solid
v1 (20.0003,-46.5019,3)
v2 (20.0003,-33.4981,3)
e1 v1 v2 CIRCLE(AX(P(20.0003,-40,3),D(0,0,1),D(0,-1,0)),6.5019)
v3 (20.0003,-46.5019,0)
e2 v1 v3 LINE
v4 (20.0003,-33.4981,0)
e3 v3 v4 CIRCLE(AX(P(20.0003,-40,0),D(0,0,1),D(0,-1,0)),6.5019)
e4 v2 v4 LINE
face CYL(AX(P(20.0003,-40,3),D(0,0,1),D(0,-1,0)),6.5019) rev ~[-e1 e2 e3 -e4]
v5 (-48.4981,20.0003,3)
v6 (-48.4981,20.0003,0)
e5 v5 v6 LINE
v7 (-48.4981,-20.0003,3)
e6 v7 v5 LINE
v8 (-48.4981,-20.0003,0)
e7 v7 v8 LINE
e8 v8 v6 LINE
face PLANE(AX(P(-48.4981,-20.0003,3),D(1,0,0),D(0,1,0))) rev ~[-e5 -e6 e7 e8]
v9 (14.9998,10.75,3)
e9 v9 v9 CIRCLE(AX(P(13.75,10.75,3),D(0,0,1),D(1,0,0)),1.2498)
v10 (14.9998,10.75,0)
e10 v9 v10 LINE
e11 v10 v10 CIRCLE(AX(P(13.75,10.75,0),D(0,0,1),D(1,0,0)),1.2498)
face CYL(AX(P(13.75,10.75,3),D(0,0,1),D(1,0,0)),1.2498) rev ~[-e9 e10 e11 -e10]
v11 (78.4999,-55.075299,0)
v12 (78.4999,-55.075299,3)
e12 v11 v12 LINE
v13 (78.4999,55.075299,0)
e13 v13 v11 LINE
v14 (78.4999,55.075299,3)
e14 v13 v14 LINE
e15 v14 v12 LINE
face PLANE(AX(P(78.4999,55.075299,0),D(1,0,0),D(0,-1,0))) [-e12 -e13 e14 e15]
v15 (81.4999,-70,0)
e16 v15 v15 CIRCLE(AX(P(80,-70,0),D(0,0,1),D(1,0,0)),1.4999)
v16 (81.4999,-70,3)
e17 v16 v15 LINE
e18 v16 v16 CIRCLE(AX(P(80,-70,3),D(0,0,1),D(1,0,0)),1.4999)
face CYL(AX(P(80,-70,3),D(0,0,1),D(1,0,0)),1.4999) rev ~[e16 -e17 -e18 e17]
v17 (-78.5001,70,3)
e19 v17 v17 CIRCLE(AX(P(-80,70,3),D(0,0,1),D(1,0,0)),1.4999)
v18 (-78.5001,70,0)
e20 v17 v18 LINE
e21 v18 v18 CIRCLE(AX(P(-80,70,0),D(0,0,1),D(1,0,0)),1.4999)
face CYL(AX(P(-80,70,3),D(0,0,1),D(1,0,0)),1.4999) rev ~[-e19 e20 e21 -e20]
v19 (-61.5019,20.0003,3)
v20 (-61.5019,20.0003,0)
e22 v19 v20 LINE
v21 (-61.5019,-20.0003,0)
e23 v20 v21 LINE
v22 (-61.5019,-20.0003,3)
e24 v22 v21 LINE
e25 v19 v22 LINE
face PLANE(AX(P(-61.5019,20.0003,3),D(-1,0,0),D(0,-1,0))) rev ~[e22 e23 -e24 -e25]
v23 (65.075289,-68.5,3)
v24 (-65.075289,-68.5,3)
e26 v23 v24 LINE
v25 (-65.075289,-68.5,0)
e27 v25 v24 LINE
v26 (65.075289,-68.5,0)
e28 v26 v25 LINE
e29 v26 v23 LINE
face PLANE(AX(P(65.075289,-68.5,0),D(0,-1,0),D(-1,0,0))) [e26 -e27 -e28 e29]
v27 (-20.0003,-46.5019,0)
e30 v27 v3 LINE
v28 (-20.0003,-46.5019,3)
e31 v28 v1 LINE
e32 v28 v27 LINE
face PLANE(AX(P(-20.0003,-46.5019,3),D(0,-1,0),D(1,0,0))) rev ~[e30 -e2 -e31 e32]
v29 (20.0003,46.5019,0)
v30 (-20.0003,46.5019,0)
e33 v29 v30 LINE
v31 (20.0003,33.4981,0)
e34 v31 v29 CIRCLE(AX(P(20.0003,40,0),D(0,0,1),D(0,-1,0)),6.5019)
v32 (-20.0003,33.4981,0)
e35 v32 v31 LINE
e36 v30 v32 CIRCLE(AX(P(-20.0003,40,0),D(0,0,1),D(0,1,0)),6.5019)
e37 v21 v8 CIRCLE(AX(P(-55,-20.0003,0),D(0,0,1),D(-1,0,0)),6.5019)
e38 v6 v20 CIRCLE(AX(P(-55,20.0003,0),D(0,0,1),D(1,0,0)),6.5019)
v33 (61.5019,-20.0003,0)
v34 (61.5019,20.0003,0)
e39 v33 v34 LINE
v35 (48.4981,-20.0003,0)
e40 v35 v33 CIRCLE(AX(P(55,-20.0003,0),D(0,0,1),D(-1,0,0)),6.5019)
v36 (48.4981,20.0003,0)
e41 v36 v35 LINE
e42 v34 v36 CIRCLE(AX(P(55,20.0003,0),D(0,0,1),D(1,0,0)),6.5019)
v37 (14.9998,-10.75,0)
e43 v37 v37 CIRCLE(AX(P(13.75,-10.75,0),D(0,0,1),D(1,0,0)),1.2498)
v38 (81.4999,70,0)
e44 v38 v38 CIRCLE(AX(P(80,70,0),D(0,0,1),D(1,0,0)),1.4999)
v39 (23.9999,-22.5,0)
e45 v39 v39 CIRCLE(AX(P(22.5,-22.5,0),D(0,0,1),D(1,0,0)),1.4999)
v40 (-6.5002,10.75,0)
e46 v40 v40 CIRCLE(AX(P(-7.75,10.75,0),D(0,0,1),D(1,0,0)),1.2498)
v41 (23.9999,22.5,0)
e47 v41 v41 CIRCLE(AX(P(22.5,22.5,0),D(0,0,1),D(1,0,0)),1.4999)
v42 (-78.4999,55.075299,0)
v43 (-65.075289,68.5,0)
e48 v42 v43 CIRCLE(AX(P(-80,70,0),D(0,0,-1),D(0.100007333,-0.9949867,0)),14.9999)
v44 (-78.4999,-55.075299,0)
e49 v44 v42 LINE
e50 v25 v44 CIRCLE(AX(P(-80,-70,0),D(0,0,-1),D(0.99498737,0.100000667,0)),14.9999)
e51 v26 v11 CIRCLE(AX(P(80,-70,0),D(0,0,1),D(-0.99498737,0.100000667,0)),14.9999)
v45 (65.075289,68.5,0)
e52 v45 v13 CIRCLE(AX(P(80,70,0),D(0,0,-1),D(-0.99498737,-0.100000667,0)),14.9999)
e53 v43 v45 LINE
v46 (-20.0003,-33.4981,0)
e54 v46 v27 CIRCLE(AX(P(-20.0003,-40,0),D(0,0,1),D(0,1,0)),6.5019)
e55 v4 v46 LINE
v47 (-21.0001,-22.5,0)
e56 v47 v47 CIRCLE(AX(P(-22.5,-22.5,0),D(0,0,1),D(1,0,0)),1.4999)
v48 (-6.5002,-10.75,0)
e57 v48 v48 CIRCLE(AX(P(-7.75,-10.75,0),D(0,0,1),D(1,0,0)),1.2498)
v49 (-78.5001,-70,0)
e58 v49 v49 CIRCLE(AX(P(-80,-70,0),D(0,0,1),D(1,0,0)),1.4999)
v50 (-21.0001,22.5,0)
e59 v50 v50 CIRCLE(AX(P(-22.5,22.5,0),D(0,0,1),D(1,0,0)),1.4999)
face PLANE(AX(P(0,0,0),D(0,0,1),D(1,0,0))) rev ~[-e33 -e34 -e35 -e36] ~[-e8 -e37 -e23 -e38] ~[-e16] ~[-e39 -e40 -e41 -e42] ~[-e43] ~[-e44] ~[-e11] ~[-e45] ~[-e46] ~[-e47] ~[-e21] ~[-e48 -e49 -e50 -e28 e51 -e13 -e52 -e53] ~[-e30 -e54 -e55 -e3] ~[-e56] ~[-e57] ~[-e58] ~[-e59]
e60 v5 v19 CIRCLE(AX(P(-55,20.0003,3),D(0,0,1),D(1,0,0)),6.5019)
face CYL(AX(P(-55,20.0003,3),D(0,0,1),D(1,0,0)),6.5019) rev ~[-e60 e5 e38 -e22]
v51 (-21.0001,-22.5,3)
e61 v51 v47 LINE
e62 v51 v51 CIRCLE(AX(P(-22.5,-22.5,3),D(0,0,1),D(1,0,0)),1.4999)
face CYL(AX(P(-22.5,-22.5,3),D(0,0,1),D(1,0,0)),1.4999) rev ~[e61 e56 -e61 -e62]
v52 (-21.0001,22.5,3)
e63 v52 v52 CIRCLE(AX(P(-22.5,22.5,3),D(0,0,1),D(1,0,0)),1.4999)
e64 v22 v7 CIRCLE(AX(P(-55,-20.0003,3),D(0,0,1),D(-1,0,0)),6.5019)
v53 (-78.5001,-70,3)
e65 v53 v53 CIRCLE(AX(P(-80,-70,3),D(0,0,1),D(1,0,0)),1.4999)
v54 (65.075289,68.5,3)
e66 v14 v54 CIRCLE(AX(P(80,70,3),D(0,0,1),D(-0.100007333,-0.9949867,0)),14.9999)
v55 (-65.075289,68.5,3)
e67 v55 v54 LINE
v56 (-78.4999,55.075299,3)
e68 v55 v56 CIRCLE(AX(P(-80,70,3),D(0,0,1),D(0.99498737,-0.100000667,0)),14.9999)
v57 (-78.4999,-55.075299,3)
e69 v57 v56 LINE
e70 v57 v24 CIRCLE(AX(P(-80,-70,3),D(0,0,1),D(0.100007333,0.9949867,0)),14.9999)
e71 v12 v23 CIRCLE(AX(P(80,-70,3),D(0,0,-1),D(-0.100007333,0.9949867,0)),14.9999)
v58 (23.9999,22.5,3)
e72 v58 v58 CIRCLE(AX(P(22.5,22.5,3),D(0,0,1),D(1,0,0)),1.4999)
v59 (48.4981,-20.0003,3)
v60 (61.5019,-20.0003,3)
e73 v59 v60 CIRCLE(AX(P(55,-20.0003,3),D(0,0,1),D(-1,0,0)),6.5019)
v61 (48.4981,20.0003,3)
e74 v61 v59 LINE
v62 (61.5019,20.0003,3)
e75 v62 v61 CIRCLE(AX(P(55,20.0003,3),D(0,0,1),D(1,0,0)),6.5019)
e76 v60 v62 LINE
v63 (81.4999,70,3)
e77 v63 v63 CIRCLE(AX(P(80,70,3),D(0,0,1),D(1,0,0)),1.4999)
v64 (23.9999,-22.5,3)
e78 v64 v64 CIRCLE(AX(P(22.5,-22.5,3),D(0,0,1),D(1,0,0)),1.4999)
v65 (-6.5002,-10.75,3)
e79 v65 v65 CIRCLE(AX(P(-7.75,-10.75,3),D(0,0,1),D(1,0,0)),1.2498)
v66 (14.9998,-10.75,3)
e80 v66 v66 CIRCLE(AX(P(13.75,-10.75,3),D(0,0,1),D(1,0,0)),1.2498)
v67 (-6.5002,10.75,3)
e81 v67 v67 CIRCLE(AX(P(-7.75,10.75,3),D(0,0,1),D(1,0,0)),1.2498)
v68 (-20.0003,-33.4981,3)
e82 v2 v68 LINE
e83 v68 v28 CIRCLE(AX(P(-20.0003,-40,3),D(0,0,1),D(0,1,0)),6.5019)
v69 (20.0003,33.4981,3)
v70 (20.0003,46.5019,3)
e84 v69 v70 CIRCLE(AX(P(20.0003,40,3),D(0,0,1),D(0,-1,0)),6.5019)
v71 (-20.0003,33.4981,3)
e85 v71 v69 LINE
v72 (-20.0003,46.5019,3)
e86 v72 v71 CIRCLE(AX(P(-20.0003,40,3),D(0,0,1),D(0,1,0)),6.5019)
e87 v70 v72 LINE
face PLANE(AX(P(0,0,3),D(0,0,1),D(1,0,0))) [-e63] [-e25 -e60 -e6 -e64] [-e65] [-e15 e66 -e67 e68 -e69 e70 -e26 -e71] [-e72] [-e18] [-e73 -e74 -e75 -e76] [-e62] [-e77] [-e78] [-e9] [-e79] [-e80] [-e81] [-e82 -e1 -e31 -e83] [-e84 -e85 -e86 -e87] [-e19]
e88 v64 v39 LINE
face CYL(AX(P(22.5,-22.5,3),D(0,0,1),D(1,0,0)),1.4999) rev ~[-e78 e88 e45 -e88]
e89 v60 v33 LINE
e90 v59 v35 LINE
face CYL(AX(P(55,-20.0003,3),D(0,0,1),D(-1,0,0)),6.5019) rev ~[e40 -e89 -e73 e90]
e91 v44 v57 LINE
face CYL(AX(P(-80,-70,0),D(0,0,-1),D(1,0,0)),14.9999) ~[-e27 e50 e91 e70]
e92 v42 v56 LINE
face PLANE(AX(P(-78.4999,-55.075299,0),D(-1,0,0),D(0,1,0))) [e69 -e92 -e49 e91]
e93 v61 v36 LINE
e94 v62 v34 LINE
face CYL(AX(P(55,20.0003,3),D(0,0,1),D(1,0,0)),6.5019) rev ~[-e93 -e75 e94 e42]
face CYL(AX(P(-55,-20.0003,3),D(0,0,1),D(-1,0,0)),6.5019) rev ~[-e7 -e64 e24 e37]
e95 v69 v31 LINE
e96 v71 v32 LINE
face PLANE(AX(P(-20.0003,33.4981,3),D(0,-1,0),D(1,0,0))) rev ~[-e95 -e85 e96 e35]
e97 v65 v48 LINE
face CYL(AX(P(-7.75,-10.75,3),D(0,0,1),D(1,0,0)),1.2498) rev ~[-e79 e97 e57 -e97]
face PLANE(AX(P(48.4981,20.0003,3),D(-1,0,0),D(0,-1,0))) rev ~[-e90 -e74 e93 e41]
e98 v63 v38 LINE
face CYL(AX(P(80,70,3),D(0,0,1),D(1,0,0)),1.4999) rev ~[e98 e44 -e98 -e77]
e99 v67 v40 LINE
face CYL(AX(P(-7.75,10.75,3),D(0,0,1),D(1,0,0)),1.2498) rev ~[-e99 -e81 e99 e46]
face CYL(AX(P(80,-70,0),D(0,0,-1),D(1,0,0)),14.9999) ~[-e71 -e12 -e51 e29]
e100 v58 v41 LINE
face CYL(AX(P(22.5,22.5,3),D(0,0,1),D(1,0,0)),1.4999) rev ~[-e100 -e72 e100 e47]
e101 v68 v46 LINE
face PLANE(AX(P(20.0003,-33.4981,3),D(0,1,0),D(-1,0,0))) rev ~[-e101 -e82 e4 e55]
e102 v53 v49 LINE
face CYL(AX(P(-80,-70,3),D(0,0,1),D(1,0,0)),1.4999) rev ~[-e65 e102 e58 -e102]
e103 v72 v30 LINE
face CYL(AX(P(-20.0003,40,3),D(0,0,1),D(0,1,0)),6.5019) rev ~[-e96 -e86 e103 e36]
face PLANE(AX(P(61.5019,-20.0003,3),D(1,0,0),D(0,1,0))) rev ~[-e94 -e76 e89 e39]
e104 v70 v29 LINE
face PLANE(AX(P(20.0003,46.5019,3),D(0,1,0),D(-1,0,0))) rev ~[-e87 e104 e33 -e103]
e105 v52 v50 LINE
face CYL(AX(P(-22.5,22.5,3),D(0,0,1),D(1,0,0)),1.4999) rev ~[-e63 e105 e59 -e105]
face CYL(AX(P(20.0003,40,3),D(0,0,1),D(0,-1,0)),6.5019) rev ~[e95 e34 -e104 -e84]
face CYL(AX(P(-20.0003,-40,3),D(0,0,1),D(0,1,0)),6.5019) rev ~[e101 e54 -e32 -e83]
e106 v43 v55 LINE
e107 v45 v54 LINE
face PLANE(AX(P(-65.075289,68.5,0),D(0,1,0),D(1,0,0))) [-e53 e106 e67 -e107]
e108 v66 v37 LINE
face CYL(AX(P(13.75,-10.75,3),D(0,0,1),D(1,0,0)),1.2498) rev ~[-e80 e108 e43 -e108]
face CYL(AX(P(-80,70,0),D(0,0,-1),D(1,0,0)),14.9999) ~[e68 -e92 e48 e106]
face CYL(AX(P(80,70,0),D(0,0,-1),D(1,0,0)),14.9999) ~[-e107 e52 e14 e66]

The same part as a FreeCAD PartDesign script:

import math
import FreeCAD as App
import Part
import Sketcher

doc = App.newDocument("Part")
body = doc.addObject("PartDesign::Body", "Body")

sketch1 = body.newObject("Sketcher::SketchObject", "Sketch")
sketch1.AttachmentSupport = (doc.getObject("XY_Plane"), [""])
sketch1.MapMode = "FlatFace"
sketch1.addGeometry([
    Part.LineSegment(App.Vector(78.4999, -55.075299, 0), App.Vector(78.4999, 55.075299, 0)),
    Part.ArcOfCircle(Part.Circle(App.Vector(80, 70, 0), App.Vector(0, 0, 1), 14.9999), math.radians(-95.739593), math.radians(185.739209)),
    Part.LineSegment(App.Vector(65.075289, 68.5, 0), App.Vector(-65.075289, 68.5, 0)),
    Part.ArcOfCircle(Part.Circle(App.Vector(-80, 70, 0), App.Vector(0, 0, 1), 14.9999), math.radians(-5.739209), math.radians(275.739593)),
    Part.LineSegment(App.Vector(-78.4999, 55.075299, 0), App.Vector(-78.4999, -55.075299, 0)),
    Part.ArcOfCircle(Part.Circle(App.Vector(-80, -70, 0), App.Vector(0, 0, 1), 14.9999), math.radians(84.260407), math.radians(365.739209)),
    Part.LineSegment(App.Vector(-65.075289, -68.5, 0), App.Vector(65.075289, -68.5, 0)),
    Part.ArcOfCircle(Part.Circle(App.Vector(80, -70, 0), App.Vector(0, 0, 1), 14.9999), math.radians(174.260791), math.radians(455.739593)),
], False)
sketch1.addConstraint([
    Sketcher.Constraint("Coincident", 0, 2, 1, 1),
    Sketcher.Constraint("Coincident", 1, 2, 2, 1),
    Sketcher.Constraint("Coincident", 2, 2, 3, 1),
    Sketcher.Constraint("Coincident", 3, 2, 4, 1),
    Sketcher.Constraint("Coincident", 4, 2, 5, 1),
    Sketcher.Constraint("Coincident", 5, 2, 6, 1),
    Sketcher.Constraint("Coincident", 6, 2, 7, 1),
    Sketcher.Constraint("Coincident", 7, 2, 0, 1),
    Sketcher.Constraint("Vertical", 0),
    Sketcher.Constraint("Horizontal", 2),
    Sketcher.Constraint("Vertical", 4),
    Sketcher.Constraint("Horizontal", 6),
    Sketcher.Constraint("Equal", 1, 3),
    Sketcher.Constraint("Equal", 3, 5),
    Sketcher.Constraint("Equal", 5, 7),
    Sketcher.Constraint("Symmetric", 1, 3, 5, 3, -1, 1),
    Sketcher.Constraint("Symmetric", 3, 3, 7, 3, -1, 1),
    Sketcher.Constraint("Symmetric", 1, 3, 3, 3, -2),
    Sketcher.Constraint("Horizontal", 0, 2, 3, 2),
    Sketcher.Constraint("Vertical", 2, 2, 5, 2),
    Sketcher.Constraint("Radius", 1, 15.0),
    Sketcher.Constraint("DistanceX", -1, 1, 1, 3, 80.0),
    Sketcher.Constraint("DistanceY", -1, 1, 1, 3, 70.0),
    Sketcher.Constraint("DistanceY", 5, 2, 2, 2, 137.0),
    Sketcher.Constraint("DistanceX", -1, 1, 0, 2, 78.5),
])
pad1 = body.newObject("PartDesign::Pad", "Pad")
pad1.Profile = sketch1
pad1.Length = 3

sketch2 = body.newObject("Sketcher::SketchObject", "Sketch001")
sketch2.AttachmentSupport = (doc.getObject("XY_Plane"), [""])
sketch2.MapMode = "FlatFace"
sketch2.AttachmentOffset = App.Placement(App.Vector(0, 0, 3), App.Rotation())
sketch2.addGeometry([
    Part.Circle(App.Vector(80, 70, 0), App.Vector(0, 0, 1), 1.4999),
    Part.Circle(App.Vector(-80, 70, 0), App.Vector(0, 0, 1), 1.4999),
    Part.Circle(App.Vector(-80, -70, 0), App.Vector(0, 0, 1), 1.4999),
    Part.Circle(App.Vector(80, -70, 0), App.Vector(0, 0, 1), 1.4999),
], False)
sketch2.addConstraint([
    Sketcher.Constraint("Equal", 0, 1),
    Sketcher.Constraint("Equal", 1, 2),
    Sketcher.Constraint("Equal", 2, 3),
    Sketcher.Constraint("Symmetric", 0, 3, 2, 3, -1, 1),
    Sketcher.Constraint("Symmetric", 1, 3, 3, 3, -1, 1),
    Sketcher.Constraint("Symmetric", 0, 3, 1, 3, -2),
    Sketcher.Constraint("DistanceX", -1, 1, 0, 3, 80.0),
    Sketcher.Constraint("DistanceY", -1, 1, 0, 3, 70.0),
    Sketcher.Constraint("Diameter", 0, 2.9998),
])
pocket1 = body.newObject("PartDesign::Pocket", "Pocket")
pocket1.Profile = sketch2
pocket1.Length = 10

sketch3 = body.newObject("Sketcher::SketchObject", "Sketch002")
sketch3.AttachmentSupport = (doc.getObject("XY_Plane"), [""])
sketch3.MapMode = "FlatFace"
sketch3.AttachmentOffset = App.Placement(App.Vector(0, 0, 3), App.Rotation())
sketch3.addGeometry([
    Part.ArcOfCircle(Part.Circle(App.Vector(-20.0003, 40, 0), App.Vector(0, 0, 1), 6.5019), math.radians(90), math.radians(270)),
    Part.LineSegment(App.Vector(-20.0003, 33.4981, 0), App.Vector(20.0003, 33.4981, 0)),
    Part.ArcOfCircle(Part.Circle(App.Vector(20.0003, 40, 0), App.Vector(0, 0, 1), 6.5019), math.radians(-90), math.radians(90)),
    Part.LineSegment(App.Vector(20.0003, 46.5019, 0), App.Vector(-20.0003, 46.5019, 0)),
    Part.ArcOfCircle(Part.Circle(App.Vector(-20.0003, -40, 0), App.Vector(0, 0, 1), 6.5019), math.radians(90), math.radians(270)),
    Part.LineSegment(App.Vector(-20.0003, -46.5019, 0), App.Vector(20.0003, -46.5019, 0)),
    Part.ArcOfCircle(Part.Circle(App.Vector(20.0003, -40, 0), App.Vector(0, 0, 1), 6.5019), math.radians(-90), math.radians(90)),
    Part.LineSegment(App.Vector(20.0003, -33.4981, 0), App.Vector(-20.0003, -33.4981, 0)),
    Part.LineSegment(App.Vector(48.4981, 20.0003, 0), App.Vector(48.4981, -20.0003, 0)),
    Part.ArcOfCircle(Part.Circle(App.Vector(55, -20.0003, 0), App.Vector(0, 0, 1), 6.5019), math.radians(180), math.radians(360)),
    Part.LineSegment(App.Vector(61.5019, -20.0003, 0), App.Vector(61.5019, 20.0003, 0)),
    Part.ArcOfCircle(Part.Circle(App.Vector(55, 20.0003, 0), App.Vector(0, 0, 1), 6.5019), math.radians(0), math.radians(180)),
    Part.LineSegment(App.Vector(-61.5019, 20.0003, 0), App.Vector(-61.5019, -20.0003, 0)),
    Part.ArcOfCircle(Part.Circle(App.Vector(-55, -20.0003, 0), App.Vector(0, 0, 1), 6.5019), math.radians(180), math.radians(360)),
    Part.LineSegment(App.Vector(-48.4981, -20.0003, 0), App.Vector(-48.4981, 20.0003, 0)),
    Part.ArcOfCircle(Part.Circle(App.Vector(-55, 20.0003, 0), App.Vector(0, 0, 1), 6.5019), math.radians(0), math.radians(180)),
], False)
sketch3.addConstraint([
    Sketcher.Constraint("Tangent", 0, 2, 1, 1),
    Sketcher.Constraint("Tangent", 1, 2, 2, 1),
    Sketcher.Constraint("Tangent", 2, 2, 3, 1),
    Sketcher.Constraint("Tangent", 3, 2, 0, 1),
    Sketcher.Constraint("Tangent", 4, 2, 5, 1),
    Sketcher.Constraint("Tangent", 5, 2, 6, 1),
    Sketcher.Constraint("Tangent", 6, 2, 7, 1),
    Sketcher.Constraint("Tangent", 7, 2, 4, 1),
    Sketcher.Constraint("Tangent", 8, 2, 9, 1),
    Sketcher.Constraint("Tangent", 9, 2, 10, 1),
    Sketcher.Constraint("Tangent", 10, 2, 11, 1),
    Sketcher.Constraint("Tangent", 11, 2, 8, 1),
    Sketcher.Constraint("Tangent", 12, 2, 13, 1),
    Sketcher.Constraint("Tangent", 13, 2, 14, 1),
    Sketcher.Constraint("Tangent", 14, 2, 15, 1),
    Sketcher.Constraint("Tangent", 15, 2, 12, 1),
    Sketcher.Constraint("Horizontal", 1),
    Sketcher.Constraint("Horizontal", 3),
    Sketcher.Constraint("Horizontal", 5),
    Sketcher.Constraint("Horizontal", 7),
    Sketcher.Constraint("Vertical", 8),
    Sketcher.Constraint("Vertical", 10),
    Sketcher.Constraint("Vertical", 12),
    Sketcher.Constraint("Vertical", 14),
    Sketcher.Constraint("Equal", 2, 4),
    Sketcher.Constraint("Equal", 6, 9),
    Sketcher.Constraint("Equal", 11, 13),
    Sketcher.Constraint("Symmetric", 2, 3, 4, 3, -1, 1),
    Sketcher.Constraint("Symmetric", 11, 3, 13, 3, -1, 1),
    Sketcher.Constraint("Horizontal", 9, 3, 13, 3),
    Sketcher.Constraint("Horizontal", 11, 3, 15, 3),
    Sketcher.Constraint("Vertical", 0, 3, 4, 3),
    Sketcher.Constraint("Vertical", 2, 3, 6, 3),
    Sketcher.Constraint("Equal", 7, 8),
    Sketcher.Constraint("DistanceY", -1, 1, 0, 3, 40.0),
    Sketcher.Constraint("DistanceX", -1, 1, 9, 3, 55.0),
    Sketcher.Constraint("Radius", 0, 6.502),
    Sketcher.Constraint("DistanceX", 1, 1, 1, 2, 40.0006),
])
pocket2 = body.newObject("PartDesign::Pocket", "Pocket001")
pocket2.Profile = sketch3
pocket2.Length = 10

sketch4 = body.newObject("Sketcher::SketchObject", "Sketch003")
sketch4.AttachmentSupport = (doc.getObject("XY_Plane"), [""])
sketch4.MapMode = "FlatFace"
sketch4.AttachmentOffset = App.Placement(App.Vector(0, 0, 3), App.Rotation())
sketch4.addGeometry([
    Part.Circle(App.Vector(13.75, 10.75, 0), App.Vector(0, 0, 1), 1.2498),
    Part.Circle(App.Vector(-7.75, 10.75, 0), App.Vector(0, 0, 1), 1.2498),
    Part.Circle(App.Vector(-7.75, -10.75, 0), App.Vector(0, 0, 1), 1.2498),
    Part.Circle(App.Vector(13.75, -10.75, 0), App.Vector(0, 0, 1), 1.2498),
], False)
sketch4.addConstraint([
    Sketcher.Constraint("Equal", 0, 1),
    Sketcher.Constraint("Equal", 1, 2),
    Sketcher.Constraint("Equal", 2, 3),
    Sketcher.Constraint("Symmetric", 1, 3, 2, 3, -1),
    Sketcher.Constraint("Symmetric", 0, 3, 3, 3, -1),
    Sketcher.Constraint("Horizontal", 0, 3, 1, 3),
    Sketcher.Constraint("Diameter", 0, 2.4996),
    Sketcher.Constraint("DistanceX", 1, 3, 0, 3, 21.5),
    Sketcher.Constraint("DistanceY", 2, 3, 1, 3, 21.5),
    Sketcher.Constraint("DistanceX", -1, 1, 0, 3, 13.75),
])
pocket3 = body.newObject("PartDesign::Pocket", "Pocket002")
pocket3.Profile = sketch4
pocket3.Length = 10

sketch5 = body.newObject("Sketcher::SketchObject", "Sketch004")
sketch5.AttachmentSupport = (doc.getObject("XY_Plane"), [""])
sketch5.MapMode = "FlatFace"
sketch5.AttachmentOffset = App.Placement(App.Vector(0, 0, 3), App.Rotation())
sketch5.addGeometry([
    Part.Circle(App.Vector(22.5, 22.5, 0), App.Vector(0, 0, 1), 1.4999),
    Part.Circle(App.Vector(-22.5, 22.5, 0), App.Vector(0, 0, 1), 1.4999),
    Part.Circle(App.Vector(-22.5, -22.5, 0), App.Vector(0, 0, 1), 1.4999),
    Part.Circle(App.Vector(22.5, -22.5, 0), App.Vector(0, 0, 1), 1.4999),
], False)
sketch5.addConstraint([
    Sketcher.Constraint("Equal", 0, 1),
    Sketcher.Constraint("Equal", 1, 2),
    Sketcher.Constraint("Equal", 2, 3),
    Sketcher.Constraint("Symmetric", 0, 3, 2, 3, -1, 1),
    Sketcher.Constraint("Symmetric", 1, 3, 3, 3, -1, 1),
    Sketcher.Constraint("Symmetric", 0, 3, 1, 3, -2),
    Sketcher.Constraint("DistanceX", 1, 3, 0, 3, 45.0),
    Sketcher.Constraint("DistanceY", 2, 3, 1, 3, 45.0),
    Sketcher.Constraint("Diameter", 0, 2.9998),
])
pocket4 = body.newObject("PartDesign::Pocket", "Pocket003")
pocket4.Profile = sketch5
pocket4.Length = 10

doc.recompute()
